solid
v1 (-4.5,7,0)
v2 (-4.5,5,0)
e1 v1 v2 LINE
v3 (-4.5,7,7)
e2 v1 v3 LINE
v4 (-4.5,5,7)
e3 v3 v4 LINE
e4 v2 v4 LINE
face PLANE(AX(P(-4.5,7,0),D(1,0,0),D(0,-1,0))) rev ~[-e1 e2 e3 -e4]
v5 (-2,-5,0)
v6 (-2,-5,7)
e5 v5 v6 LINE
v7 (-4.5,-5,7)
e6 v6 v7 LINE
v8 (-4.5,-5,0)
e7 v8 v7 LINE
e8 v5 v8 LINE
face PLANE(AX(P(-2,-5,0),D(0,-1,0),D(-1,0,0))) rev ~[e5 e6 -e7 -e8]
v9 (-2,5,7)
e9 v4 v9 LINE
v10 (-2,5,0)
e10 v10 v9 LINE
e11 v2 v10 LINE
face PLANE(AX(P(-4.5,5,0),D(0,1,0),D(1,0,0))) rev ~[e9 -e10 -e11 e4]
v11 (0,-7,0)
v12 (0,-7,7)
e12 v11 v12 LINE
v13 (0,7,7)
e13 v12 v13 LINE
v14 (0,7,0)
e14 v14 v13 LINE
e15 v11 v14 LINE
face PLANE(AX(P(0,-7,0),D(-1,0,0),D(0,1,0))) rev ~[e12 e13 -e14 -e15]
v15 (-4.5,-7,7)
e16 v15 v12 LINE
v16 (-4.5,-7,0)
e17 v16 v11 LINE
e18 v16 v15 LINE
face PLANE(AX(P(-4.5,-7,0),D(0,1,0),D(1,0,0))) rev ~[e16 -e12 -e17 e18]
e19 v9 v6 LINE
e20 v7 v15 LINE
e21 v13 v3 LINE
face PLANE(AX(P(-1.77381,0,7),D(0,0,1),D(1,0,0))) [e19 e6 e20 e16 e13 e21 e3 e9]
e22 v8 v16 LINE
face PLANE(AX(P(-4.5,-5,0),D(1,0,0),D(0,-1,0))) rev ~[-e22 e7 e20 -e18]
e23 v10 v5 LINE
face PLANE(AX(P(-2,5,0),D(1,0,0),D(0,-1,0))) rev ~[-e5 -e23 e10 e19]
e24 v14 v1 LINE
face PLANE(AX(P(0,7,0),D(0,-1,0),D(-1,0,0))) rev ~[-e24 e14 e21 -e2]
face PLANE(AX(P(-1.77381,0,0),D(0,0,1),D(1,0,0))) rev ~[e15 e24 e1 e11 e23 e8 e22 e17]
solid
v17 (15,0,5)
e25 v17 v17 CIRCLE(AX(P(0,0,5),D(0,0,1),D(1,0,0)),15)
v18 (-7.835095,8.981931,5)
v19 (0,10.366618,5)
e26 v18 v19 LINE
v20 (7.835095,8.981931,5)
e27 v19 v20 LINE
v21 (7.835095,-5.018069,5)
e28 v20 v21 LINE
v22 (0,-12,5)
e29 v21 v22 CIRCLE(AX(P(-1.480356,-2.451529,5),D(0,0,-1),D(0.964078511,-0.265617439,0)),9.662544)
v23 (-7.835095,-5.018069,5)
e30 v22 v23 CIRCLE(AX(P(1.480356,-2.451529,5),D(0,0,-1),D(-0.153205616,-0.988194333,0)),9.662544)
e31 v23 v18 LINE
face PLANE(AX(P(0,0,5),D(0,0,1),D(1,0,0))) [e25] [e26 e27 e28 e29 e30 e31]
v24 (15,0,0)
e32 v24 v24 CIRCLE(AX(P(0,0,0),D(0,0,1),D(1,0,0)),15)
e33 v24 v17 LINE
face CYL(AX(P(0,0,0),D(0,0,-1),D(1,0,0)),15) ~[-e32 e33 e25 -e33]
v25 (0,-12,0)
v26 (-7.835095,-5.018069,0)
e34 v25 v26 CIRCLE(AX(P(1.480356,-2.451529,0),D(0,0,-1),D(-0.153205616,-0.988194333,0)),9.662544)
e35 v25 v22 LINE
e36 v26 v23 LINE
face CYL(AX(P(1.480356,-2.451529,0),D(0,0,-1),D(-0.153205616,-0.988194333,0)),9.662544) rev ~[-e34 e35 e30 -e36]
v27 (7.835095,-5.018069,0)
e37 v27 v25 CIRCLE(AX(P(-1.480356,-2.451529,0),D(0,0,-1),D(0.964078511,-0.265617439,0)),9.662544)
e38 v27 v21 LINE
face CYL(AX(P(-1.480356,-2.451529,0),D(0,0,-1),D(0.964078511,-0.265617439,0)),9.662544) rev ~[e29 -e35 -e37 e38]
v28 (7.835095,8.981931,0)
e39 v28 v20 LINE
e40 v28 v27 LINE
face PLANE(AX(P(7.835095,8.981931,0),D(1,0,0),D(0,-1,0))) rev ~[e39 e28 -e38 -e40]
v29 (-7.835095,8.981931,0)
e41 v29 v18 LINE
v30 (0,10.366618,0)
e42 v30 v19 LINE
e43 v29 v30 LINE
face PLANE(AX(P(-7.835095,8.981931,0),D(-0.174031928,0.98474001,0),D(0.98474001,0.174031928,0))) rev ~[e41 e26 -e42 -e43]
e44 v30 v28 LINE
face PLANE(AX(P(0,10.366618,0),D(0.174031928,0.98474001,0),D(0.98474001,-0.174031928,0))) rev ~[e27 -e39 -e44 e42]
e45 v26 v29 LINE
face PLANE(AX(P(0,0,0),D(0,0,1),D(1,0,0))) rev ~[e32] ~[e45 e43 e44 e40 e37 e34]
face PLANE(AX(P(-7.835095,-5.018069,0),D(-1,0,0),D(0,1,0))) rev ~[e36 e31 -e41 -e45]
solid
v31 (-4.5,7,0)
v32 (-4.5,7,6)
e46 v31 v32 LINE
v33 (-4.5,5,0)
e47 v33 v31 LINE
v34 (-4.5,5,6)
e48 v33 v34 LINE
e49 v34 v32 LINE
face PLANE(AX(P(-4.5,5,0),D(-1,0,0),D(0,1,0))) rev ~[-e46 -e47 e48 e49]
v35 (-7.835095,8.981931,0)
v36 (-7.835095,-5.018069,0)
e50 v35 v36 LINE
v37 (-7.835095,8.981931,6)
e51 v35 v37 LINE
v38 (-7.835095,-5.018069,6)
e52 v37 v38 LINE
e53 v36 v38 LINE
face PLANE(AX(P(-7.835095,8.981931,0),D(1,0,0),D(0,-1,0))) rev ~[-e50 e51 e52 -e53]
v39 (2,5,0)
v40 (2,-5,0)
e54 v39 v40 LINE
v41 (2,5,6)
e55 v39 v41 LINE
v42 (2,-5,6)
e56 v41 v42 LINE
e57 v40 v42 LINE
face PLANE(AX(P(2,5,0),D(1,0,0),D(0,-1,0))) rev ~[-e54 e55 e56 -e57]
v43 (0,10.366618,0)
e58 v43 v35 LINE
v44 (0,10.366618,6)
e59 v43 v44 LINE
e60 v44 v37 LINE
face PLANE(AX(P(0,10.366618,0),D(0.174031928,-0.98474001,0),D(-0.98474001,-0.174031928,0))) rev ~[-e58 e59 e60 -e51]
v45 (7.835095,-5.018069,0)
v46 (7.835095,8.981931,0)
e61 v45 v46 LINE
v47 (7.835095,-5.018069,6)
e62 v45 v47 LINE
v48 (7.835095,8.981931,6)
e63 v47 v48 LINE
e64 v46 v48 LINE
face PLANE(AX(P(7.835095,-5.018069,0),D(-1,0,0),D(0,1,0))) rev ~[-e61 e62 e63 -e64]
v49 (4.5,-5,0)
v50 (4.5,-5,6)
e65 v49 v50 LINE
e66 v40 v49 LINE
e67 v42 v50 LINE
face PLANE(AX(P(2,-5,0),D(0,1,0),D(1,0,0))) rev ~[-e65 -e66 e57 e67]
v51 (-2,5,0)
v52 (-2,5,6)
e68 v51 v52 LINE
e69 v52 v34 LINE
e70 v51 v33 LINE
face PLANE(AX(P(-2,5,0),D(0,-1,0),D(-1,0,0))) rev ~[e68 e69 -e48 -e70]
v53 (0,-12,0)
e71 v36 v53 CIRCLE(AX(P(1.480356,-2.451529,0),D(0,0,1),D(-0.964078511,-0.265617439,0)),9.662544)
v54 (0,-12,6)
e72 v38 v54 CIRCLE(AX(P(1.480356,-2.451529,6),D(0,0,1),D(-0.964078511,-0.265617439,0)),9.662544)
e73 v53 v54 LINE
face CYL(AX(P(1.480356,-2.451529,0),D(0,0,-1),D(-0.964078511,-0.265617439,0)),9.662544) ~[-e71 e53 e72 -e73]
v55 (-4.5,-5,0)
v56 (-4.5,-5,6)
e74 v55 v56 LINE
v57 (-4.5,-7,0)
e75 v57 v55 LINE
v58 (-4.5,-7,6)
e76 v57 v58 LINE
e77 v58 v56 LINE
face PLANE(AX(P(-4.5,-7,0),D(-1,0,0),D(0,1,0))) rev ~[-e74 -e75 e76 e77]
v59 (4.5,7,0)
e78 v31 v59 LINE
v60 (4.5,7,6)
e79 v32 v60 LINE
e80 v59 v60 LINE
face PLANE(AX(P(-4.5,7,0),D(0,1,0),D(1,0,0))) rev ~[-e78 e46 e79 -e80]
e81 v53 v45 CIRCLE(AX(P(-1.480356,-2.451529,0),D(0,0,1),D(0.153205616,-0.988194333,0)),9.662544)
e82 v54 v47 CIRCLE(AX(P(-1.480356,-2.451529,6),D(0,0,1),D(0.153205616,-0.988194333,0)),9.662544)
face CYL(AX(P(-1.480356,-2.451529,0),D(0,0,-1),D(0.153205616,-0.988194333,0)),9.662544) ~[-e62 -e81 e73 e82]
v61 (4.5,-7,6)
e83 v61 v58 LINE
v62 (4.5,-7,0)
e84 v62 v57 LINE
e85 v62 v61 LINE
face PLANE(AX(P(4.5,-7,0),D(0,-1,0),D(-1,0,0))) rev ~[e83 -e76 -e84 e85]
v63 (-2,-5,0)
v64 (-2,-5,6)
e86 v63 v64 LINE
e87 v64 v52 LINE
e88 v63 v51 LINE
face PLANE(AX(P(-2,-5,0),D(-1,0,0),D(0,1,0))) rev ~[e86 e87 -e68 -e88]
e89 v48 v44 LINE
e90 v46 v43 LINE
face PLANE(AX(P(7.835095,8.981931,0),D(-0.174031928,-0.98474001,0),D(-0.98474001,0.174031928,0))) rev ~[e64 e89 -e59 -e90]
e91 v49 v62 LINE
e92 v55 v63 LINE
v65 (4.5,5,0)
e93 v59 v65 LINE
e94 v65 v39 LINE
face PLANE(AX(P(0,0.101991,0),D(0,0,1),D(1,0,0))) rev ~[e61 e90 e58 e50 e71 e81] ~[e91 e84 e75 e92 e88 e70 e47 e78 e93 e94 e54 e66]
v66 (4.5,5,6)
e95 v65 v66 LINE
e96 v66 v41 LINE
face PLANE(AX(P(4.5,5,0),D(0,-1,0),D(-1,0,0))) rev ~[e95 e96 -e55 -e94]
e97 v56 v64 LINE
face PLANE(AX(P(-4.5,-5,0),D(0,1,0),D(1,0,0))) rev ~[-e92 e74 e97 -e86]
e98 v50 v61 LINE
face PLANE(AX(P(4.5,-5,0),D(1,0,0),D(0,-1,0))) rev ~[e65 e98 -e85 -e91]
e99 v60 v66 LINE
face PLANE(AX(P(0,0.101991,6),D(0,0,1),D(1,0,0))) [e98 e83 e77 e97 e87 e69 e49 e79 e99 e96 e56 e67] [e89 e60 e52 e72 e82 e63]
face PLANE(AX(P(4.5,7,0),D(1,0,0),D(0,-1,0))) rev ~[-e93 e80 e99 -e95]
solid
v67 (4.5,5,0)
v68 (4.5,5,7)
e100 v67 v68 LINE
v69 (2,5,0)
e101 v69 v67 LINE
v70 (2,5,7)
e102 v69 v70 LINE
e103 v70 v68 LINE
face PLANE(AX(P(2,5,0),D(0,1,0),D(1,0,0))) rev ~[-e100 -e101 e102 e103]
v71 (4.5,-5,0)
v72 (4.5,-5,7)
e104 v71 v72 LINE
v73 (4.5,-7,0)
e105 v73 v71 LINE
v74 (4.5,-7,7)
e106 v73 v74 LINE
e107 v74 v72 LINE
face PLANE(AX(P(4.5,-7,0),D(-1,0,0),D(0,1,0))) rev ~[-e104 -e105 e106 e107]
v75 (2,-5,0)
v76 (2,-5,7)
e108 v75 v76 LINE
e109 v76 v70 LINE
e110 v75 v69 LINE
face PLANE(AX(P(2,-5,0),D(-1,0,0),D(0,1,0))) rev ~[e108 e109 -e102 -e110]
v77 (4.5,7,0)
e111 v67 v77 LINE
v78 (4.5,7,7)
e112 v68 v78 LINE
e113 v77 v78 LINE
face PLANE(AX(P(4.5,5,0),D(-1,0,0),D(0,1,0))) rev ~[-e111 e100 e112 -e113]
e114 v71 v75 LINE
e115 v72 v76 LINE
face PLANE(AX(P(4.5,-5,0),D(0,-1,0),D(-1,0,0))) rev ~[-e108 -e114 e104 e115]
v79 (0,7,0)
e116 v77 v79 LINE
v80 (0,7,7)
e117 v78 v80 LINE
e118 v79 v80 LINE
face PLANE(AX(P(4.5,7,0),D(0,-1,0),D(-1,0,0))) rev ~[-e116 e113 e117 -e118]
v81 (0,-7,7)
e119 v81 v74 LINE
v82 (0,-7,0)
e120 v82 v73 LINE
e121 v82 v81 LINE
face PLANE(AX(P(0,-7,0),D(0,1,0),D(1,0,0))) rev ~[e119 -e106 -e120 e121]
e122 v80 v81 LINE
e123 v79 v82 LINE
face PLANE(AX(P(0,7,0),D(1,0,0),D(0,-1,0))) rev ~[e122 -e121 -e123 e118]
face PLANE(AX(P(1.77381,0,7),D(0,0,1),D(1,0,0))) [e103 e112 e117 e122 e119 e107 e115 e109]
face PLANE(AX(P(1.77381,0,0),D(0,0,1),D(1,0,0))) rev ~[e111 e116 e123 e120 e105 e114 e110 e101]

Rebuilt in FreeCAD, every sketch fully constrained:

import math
import FreeCAD as App
import Part
import Sketcher

V = App.Vector
Q = App.Units.Quantity


def add_polygon(sketch, points):
    """Adds a closed chain of lines whose ends are joined by coincident constraints."""
    first, n = sketch.GeometryCount, len(points)
    for a, b in zip(points, points[1:] + points[:1]):
        sketch.addGeometry(Part.LineSegment(App.Vector(*a, 0), App.Vector(*b, 0)), False)
    for i in range(n):
        sketch.addConstraint(Sketcher.Constraint("Coincident", first + i, 2, first + (i + 1) % n, 1))

doc = App.newDocument("Part")
params = doc.addObject("Spreadsheet::Sheet", "Params")
for row, (alias, value) in enumerate([
    ("sketch1_diameter", "30 mm"),
    ("sketch1_height", "14 mm"),
    ("pad1_length", "5 mm"),
    ("sketch2_width", "9 mm"),
    ("sketch2_height", "14 mm"),
    ("sketch2_height2", "2 mm"),
    ("sketch2_height3", "10 mm"),
    ("sketch2_width2", "2.5 mm"),
    ("pad2_length", "6 mm"),
    ("sketch3_height", "2 mm"),
    ("sketch3_height2", "10 mm"),
    ("sketch3_width", "4.5 mm"),
    ("sketch3_width2", "2.5 mm"),
    ("pad3_length", "7 mm"),
    ("sketch4_height", "14 mm"),
    ("sketch4_height2", "2 mm"),
    ("sketch4_width", "4.5 mm"),
    ("sketch4_width2", "2.5 mm"),
    ("pad4_length", "7 mm"),
], start=1):
    params.set(f"A{row}", alias)
    params.set(f"B{row}", "=" + value)
    params.setAlias(f"B{row}", alias)

body = doc.addObject("PartDesign::Body", "Body")

# Sketch on XY plane
sketch1 = body.newObject("Sketcher::SketchObject", "Sketch")
sketch1.AttachmentSupport = (doc.getObject("XY_Plane"), [""])
sketch1.MapMode = "FlatFace"
sketch1.addGeometry(Part.Circle(V(0, 0, 0), V(0, 0, 1), 15), False)
sketch1.addGeometry(Part.LineSegment(V(-8, -5, 0), V(-8, 9, 0)), False)
sketch1.addGeometry(Part.LineSegment(V(-8, 9, 0), V(0, 10, 0)), False)
sketch1.addGeometry(Part.LineSegment(V(0, 10, 0), V(8, 9, 0)), False)
sketch1.addGeometry(Part.LineSegment(V(8, 9, 0), V(8, -5, 0)), False)
sketch1.addGeometry(Part.ArcOfCircle(Part.Circle(V(-1, -2, 0), V(0, 0, 1), 10), math.radians(-81), math.radians(-15)), False)
sketch1.addGeometry(Part.ArcOfCircle(Part.Circle(V(1, -2, 0), V(0, 0, 1), 10), math.radians(-165), math.radians(-99)), False)
sketch1.addConstraint(Sketcher.Constraint("Coincident", 1, 2, 2, 1))
sketch1.addConstraint(Sketcher.Constraint("Coincident", 2, 2, 3, 1))
sketch1.addConstraint(Sketcher.Constraint("Coincident", 3, 2, 4, 1))
sketch1.addConstraint(Sketcher.Constraint("Coincident", 4, 2, 5, 2))
sketch1.addConstraint(Sketcher.Constraint("Coincident", 5, 1, 6, 2))
sketch1.addConstraint(Sketcher.Constraint("Coincident", 6, 1, 1, 1))
sketch1.addConstraint(Sketcher.Constraint("Vertical", 1))
sketch1.addConstraint(Sketcher.Constraint("Vertical", 4))
sketch1.addConstraint(Sketcher.Constraint("Coincident", 0, 3, -1, 1))
sketch1.addConstraint(Sketcher.Constraint("Equal", 5, 6))
sketch1.addConstraint(Sketcher.Constraint("Symmetric", 5, 3, 6, 3, -2))
sketch1.addConstraint(Sketcher.Constraint("Symmetric", 1, 2, 3, 2, -2))
sketch1.addConstraint(Sketcher.Constraint("PointOnObject", 2, 2, -2))
sketch1.addConstraint(Sketcher.Constraint("Diameter", 0, Q("30 mm")))
sketch1.addConstraint(Sketcher.Constraint("DistanceY", 1, 1, 1, 2, Q("14 mm")))
sketch1.addConstraint(Sketcher.Constraint("DistanceY", 5, 1, -1, 1, Q("12 mm")))
sketch1.addConstraint(Sketcher.Constraint("Radius", 5, Q("9.662544 mm")))
sketch1.addConstraint(Sketcher.Constraint("Distance", 2, Q("7.956511 mm")))
sketch1.addConstraint(Sketcher.Constraint("DistanceY", 5, 3, -1, 1, Q("2.451529 mm")))
sketch1.addConstraint(Sketcher.Constraint("DistanceY", -1, 1, 1, 2, Q("8.981931 mm")))
sketch1.setExpression("Constraints[13]", "Params.sketch1_diameter")
sketch1.setExpression("Constraints[14]", "Params.sketch1_height")
pad1 = body.newObject("PartDesign::Pad", "Pad")
pad1.Profile = sketch1
pad1.setExpression("Length", "Params.pad1_length")
body2 = doc.addObject("PartDesign::Body", "Body001")

# Sketch on XY plane
sketch2 = body2.newObject("Sketcher::SketchObject", "Sketch001")
sketch2.AttachmentSupport = (doc.getObject("XY_Plane001"), [""])
sketch2.MapMode = "FlatFace"
sketch2.addGeometry(Part.LineSegment(V(7.8, 9, 0), V(0, 10.4, 0)), False)  # 0
sketch2.addGeometry(Part.LineSegment(V(0, 10.4, 0), V(-7.8, 9, 0)), False)  # 1
sketch2.addGeometry(Part.LineSegment(V(-7.8, 9, 0), V(-7.8, -5, 0)), False)  # 2
sketch2.addGeometry(Part.ArcOfCircle(Part.Circle(V(1.5, -2.5, 0), V(0, 0, 1), 9.7), math.radians(-165), math.radians(-99)), False)  # 3
sketch2.addGeometry(Part.ArcOfCircle(Part.Circle(V(-1.5, -2.5, 0), V(0, 0, 1), 9.7), math.radians(-81), math.radians(-15)), False)  # 4
sketch2.addGeometry(Part.LineSegment(V(7.8, -5, 0), V(7.8, 9, 0)), False)  # 5
add_polygon(sketch2, [(-2, 5), (-4.5, 5), (-4.5, 7), (4.5, 7), (4.5, 5), (2, 5), (2, -5), (4.5, -5), (4.5, -7), (-4.5, -7), (-4.5, -5), (-2, -5)])  # lines 6-17
sketch2.addConstraint(Sketcher.Constraint("Coincident", 0, 2, 1, 1))
sketch2.addConstraint(Sketcher.Constraint("Coincident", 1, 2, 2, 1))
sketch2.addConstraint(Sketcher.Constraint("Coincident", 2, 2, 3, 1))
sketch2.addConstraint(Sketcher.Constraint("Coincident", 3, 2, 4, 1))
sketch2.addConstraint(Sketcher.Constraint("Coincident", 4, 2, 5, 1))
sketch2.addConstraint(Sketcher.Constraint("Coincident", 5, 2, 0, 1))
sketch2.addConstraint(Sketcher.Constraint("Vertical", 2))
sketch2.addConstraint(Sketcher.Constraint("Vertical", 5))
sketch2.addConstraint(Sketcher.Constraint("Horizontal", 6))
sketch2.addConstraint(Sketcher.Constraint("Vertical", 7))
sketch2.addConstraint(Sketcher.Constraint("Horizontal", 8))
sketch2.addConstraint(Sketcher.Constraint("Vertical", 9))
sketch2.addConstraint(Sketcher.Constraint("Horizontal", 10))
sketch2.addConstraint(Sketcher.Constraint("Vertical", 11))
sketch2.addConstraint(Sketcher.Constraint("Horizontal", 12))
sketch2.addConstraint(Sketcher.Constraint("Vertical", 13))
sketch2.addConstraint(Sketcher.Constraint("Horizontal", 14))
sketch2.addConstraint(Sketcher.Constraint("Vertical", 15))
sketch2.addConstraint(Sketcher.Constraint("Horizontal", 16))
sketch2.addConstraint(Sketcher.Constraint("Vertical", 17))
sketch2.addConstraint(Sketcher.Constraint("Equal", 3, 4))
sketch2.addConstraint(Sketcher.Constraint("Symmetric", 6, 2, 12, 2, -1, 1))
sketch2.addConstraint(Sketcher.Constraint("Symmetric", 8, 2, 14, 2, -1, 1))
sketch2.addConstraint(Sketcher.Constraint("Symmetric", 10, 2, 16, 2, -1, 1))
sketch2.addConstraint(Sketcher.Constraint("Symmetric", 3, 3, 4, 3, -2))
sketch2.addConstraint(Sketcher.Constraint("Symmetric", 1, 2, 5, 2, -2))
sketch2.addConstraint(Sketcher.Constraint("Symmetric", 6, 2, 9, 2, -2))
sketch2.addConstraint(Sketcher.Constraint("PointOnObject", 0, 2, -2))
sketch2.addConstraint(Sketcher.Constraint("DistanceX", 8, 1, 8, 2, Q("9 mm")))
sketch2.addConstraint(Sketcher.Constraint("DistanceY", 2, 2, 2, 1, Q("14 mm")))
sketch2.addConstraint(Sketcher.Constraint("DistanceY", 7, 1, 7, 2, Q("2 mm")))
sketch2.addConstraint(Sketcher.Constraint("DistanceY", 11, 2, 11, 1, Q("10 mm")))
sketch2.addConstraint(Sketcher.Constraint("DistanceX", 6, 2, 6, 1, Q("2.5 mm")))
sketch2.addConstraint(Sketcher.Constraint("DistanceY", 3, 2, -1, 1, Q("12 mm")))
sketch2.addConstraint(Sketcher.Constraint("Radius", 3, Q("9.662544 mm")))
sketch2.addConstraint(Sketcher.Constraint("Distance", 0, Q("7.956511 mm")))
sketch2.addConstraint(Sketcher.Constraint("DistanceY", 3, 3, -1, 1, Q("2.451529 mm")))
sketch2.addConstraint(Sketcher.Constraint("DistanceY", -1, 1, 0, 2, Q("10.366618 mm")))
sketch2.setExpression("Constraints[40]", "Params.sketch2_width")
sketch2.setExpression("Constraints[41]", "Params.sketch2_height")
sketch2.setExpression("Constraints[42]", "Params.sketch2_height2")
sketch2.setExpression("Constraints[43]", "Params.sketch2_height3")
sketch2.setExpression("Constraints[44]", "Params.sketch2_width2")
pad2 = body2.newObject("PartDesign::Pad", "Pad001")
pad2.Profile = sketch2
pad2.setExpression("Length", "Params.pad2_length")
body3 = doc.addObject("PartDesign::Body", "Body002")

# Sketch on XY plane
sketch3 = body3.newObject("Sketcher::SketchObject", "Sketch002")
sketch3.AttachmentSupport = (doc.getObject("XY_Plane002"), [""])
sketch3.MapMode = "FlatFace"
add_polygon(sketch3, [(0, 7), (-4.5, 7), (-4.5, 5), (-2, 5), (-2, -5), (-4.5, -5), (-4.5, -7), (0, -7)])  # lines 0-7
sketch3.addConstraint(Sketcher.Constraint("Horizontal", 0))
sketch3.addConstraint(Sketcher.Constraint("Vertical", 1))
sketch3.addConstraint(Sketcher.Constraint("Horizontal", 2))
sketch3.addConstraint(Sketcher.Constraint("Vertical", 3))
sketch3.addConstraint(Sketcher.Constraint("Horizontal", 4))
sketch3.addConstraint(Sketcher.Constraint("Vertical", 5))
sketch3.addConstraint(Sketcher.Constraint("Horizontal", 6))
sketch3.addConstraint(Sketcher.Constraint("Vertical", 7))
sketch3.addConstraint(Sketcher.Constraint("Symmetric", 6, 2, 7, 2, -1, 1))
sketch3.addConstraint(Sketcher.Constraint("Symmetric", 1, 2, 4, 2, -1))
sketch3.addConstraint(Sketcher.Constraint("DistanceY", 1, 2, 1, 1, Q("2 mm")))
sketch3.addConstraint(Sketcher.Constraint("DistanceY", 3, 2, 3, 1, Q("10 mm")))
sketch3.addConstraint(Sketcher.Constraint("DistanceX", 0, 2, 0, 1, Q("4.5 mm")))
sketch3.addConstraint(Sketcher.Constraint("DistanceX", 2, 1, 2, 2, Q("2.5 mm")))
sketch3.setExpression("Constraints[18]", "Params.sketch3_height")
sketch3.setExpression("Constraints[19]", "Params.sketch3_height2")
sketch3.setExpression("Constraints[20]", "Params.sketch3_width")
sketch3.setExpression("Constraints[21]", "Params.sketch3_width2")
pad3 = body3.newObject("PartDesign::Pad", "Pad002")
pad3.Profile = sketch3
pad3.setExpression("Length", "Params.pad3_length")
body4 = doc.addObject("PartDesign::Body", "Body003")

# Sketch on XY plane
sketch4 = body4.newObject("Sketcher::SketchObject", "Sketch003")
sketch4.AttachmentSupport = (doc.getObject("XY_Plane003"), [""])
sketch4.MapMode = "FlatFace"
add_polygon(sketch4, [(4.5, 7), (0, 7), (0, -7), (4.5, -7), (4.5, -5), (2, -5), (2, 5), (4.5, 5)])  # lines 0-7
sketch4.addConstraint(Sketcher.Constraint("Horizontal", 0))
sketch4.addConstraint(Sketcher.Constraint("Vertical", 1))
sketch4.addConstraint(Sketcher.Constraint("Horizontal", 2))
sketch4.addConstraint(Sketcher.Constraint("Vertical", 3))
sketch4.addConstraint(Sketcher.Constraint("Horizontal", 4))
sketch4.addConstraint(Sketcher.Constraint("Vertical", 5))
sketch4.addConstraint(Sketcher.Constraint("Horizontal", 6))
sketch4.addConstraint(Sketcher.Constraint("Vertical", 7))
sketch4.addConstraint(Sketcher.Constraint("Symmetric", 0, 2, 1, 2, -1, 1))
sketch4.addConstraint(Sketcher.Constraint("Symmetric", 3, 2, 6, 2, -1))
sketch4.addConstraint(Sketcher.Constraint("DistanceY", 1, 2, 1, 1, Q("14 mm")))
sketch4.addConstraint(Sketcher.Constraint("DistanceY", 3, 1, 3, 2, Q("2 mm")))
sketch4.addConstraint(Sketcher.Constraint("DistanceX", 0, 2, 0, 1, Q("4.5 mm")))
sketch4.addConstraint(Sketcher.Constraint("DistanceX", 4, 2, 4, 1, Q("2.5 mm")))
sketch4.setExpression("Constraints[18]", "Params.sketch4_height")
sketch4.setExpression("Constraints[19]", "Params.sketch4_height2")
sketch4.setExpression("Constraints[20]", "Params.sketch4_width")
sketch4.setExpression("Constraints[21]", "Params.sketch4_width2")
pad4 = body4.newObject("PartDesign::Pad", "Pad003")
pad4.Profile = sketch4
pad4.setExpression("Length", "Params.pad4_length")

doc.recompute()
